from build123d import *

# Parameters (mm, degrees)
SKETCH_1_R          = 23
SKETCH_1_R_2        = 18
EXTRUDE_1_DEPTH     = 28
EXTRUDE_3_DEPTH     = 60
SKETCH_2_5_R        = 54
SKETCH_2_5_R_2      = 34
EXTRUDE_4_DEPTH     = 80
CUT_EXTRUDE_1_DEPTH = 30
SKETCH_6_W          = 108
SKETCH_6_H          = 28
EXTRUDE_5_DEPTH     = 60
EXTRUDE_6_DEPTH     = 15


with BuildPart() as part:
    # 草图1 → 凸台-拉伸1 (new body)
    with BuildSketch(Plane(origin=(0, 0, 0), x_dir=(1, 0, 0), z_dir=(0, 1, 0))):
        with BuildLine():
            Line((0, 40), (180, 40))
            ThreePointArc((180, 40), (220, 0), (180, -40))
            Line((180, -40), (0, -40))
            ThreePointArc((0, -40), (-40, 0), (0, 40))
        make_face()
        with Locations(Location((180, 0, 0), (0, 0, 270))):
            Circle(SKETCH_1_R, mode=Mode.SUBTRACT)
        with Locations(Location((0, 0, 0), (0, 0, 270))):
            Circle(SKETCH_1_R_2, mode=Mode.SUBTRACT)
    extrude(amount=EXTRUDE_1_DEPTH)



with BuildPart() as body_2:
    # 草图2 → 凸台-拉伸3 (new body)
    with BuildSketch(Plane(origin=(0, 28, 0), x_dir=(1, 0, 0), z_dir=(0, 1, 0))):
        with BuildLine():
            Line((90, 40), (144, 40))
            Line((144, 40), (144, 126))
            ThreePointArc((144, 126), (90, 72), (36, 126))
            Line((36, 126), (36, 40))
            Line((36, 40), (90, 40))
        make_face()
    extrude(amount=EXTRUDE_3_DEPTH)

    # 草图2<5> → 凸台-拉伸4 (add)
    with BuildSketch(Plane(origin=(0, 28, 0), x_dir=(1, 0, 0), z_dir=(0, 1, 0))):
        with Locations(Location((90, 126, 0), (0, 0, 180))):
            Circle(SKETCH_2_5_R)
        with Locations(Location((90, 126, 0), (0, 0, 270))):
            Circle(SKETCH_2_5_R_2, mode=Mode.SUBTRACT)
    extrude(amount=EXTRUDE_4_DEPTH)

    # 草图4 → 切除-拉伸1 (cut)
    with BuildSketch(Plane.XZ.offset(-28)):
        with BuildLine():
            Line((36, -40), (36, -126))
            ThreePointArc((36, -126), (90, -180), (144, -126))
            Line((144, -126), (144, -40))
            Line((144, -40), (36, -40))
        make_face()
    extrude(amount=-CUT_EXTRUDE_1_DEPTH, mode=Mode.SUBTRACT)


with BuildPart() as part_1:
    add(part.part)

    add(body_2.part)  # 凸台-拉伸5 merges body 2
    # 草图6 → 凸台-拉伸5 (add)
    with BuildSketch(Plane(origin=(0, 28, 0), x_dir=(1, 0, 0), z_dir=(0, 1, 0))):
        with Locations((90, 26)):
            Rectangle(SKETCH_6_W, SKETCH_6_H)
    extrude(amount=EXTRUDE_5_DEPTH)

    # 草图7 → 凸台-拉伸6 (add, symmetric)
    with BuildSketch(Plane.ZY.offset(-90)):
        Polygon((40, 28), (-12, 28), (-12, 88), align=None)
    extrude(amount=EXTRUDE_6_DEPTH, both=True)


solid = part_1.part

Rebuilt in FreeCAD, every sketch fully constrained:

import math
import FreeCAD as App
import Part
import Sketcher

V = App.Vector


def add_polygon(sketch, points):
    """Adds a closed chain of lines whose ends are joined by coincident constraints."""
    first, n = sketch.GeometryCount, len(points)
    for a, b in zip(points, points[1:] + points[:1]):
        sketch.addGeometry(Part.LineSegment(App.Vector(*a, 0), App.Vector(*b, 0)), False)
    for i in range(n):
        sketch.addConstraint(Sketcher.Constraint("Coincident", first + i, 2, first + (i + 1) % n, 1))

doc = App.newDocument("Part")
body = doc.addObject("PartDesign::Body", "Body")

# Sketch on XZ plane
sketch1 = body.newObject("Sketcher::SketchObject", "Sketch")
sketch1.AttachmentSupport = (doc.getObject("XZ_Plane"), [""])
sketch1.MapMode = "FlatFace"
sketch1.addGeometry([
    Part.LineSegment(V(180, -40, 0), V(0, -40, 0)),  # 0
    Part.ArcOfCircle(Part.Circle(V(0, 0, 0), V(0, 0, 1), 40), math.radians(90), math.radians(270)),  # 1
    Part.LineSegment(V(0, 40, 0), V(180, 40, 0)),  # 2
    Part.ArcOfCircle(Part.Circle(V(180, 0, 0), V(0, 0, 1), 40), math.radians(-90), math.radians(90)),  # 3
    Part.Circle(V(180, 0, 0), V(0, 0, 1), 23),  # 4
    Part.Circle(V(0, 0, 0), V(0, 0, 1), 18),  # 5
], False)
sketch1.addConstraint([
    Sketcher.Constraint("Tangent", 0, 2, 1, 2),
    Sketcher.Constraint("Tangent", 1, 1, 2, 1),
    Sketcher.Constraint("Tangent", 2, 2, 3, 2),
    Sketcher.Constraint("Tangent", 3, 1, 0, 1),
    Sketcher.Constraint("Horizontal", 0),
    Sketcher.Constraint("Horizontal", 2),
    Sketcher.Constraint("Coincident", 1, 3, -1, 1),
    Sketcher.Constraint("Coincident", 5, 3, -1, 1),
    Sketcher.Constraint("Coincident", 4, 3, 3, 3),
    Sketcher.Constraint("Diameter", 4, 46.0),
    Sketcher.Constraint("Diameter", 5, 36.0),
    Sketcher.Constraint("Radius", 1, 40.0),
    Sketcher.Constraint("DistanceX", 0, 2, 0, 1, 180.0),
])
pad1 = body.newObject("PartDesign::Pad", "Pad")
pad1.Profile = sketch1
pad1.Length = 28
pad1.Reversed = True
body2 = doc.addObject("PartDesign::Body", "Body001")

# Sketch on XZ plane
sketch2 = body2.newObject("Sketcher::SketchObject", "Sketch001")
sketch2.AttachmentSupport = (doc.getObject("XZ_Plane001"), [""])
sketch2.MapMode = "FlatFace"
sketch2.AttachmentOffset = App.Placement(V(0, 0, -28), App.Rotation())
sketch2.addGeometry([
    Part.LineSegment(V(144, -40, 0), V(144, -126, 0)),
    Part.ArcOfCircle(Part.Circle(V(90, -126, 0), V(0, 0, 1), 54), math.radians(0), math.radians(180)),
    Part.LineSegment(V(36, -126, 0), V(36, -40, 0)),
    Part.LineSegment(V(36, -40, 0), V(144, -40, 0)),
], False)
sketch2.addConstraint([
    Sketcher.Constraint("Tangent", 0, 2, 1, 1),
    Sketcher.Constraint("Tangent", 1, 2, 2, 1),
    Sketcher.Constraint("Coincident", 2, 2, 3, 1),
    Sketcher.Constraint("Coincident", 3, 2, 0, 1),
    Sketcher.Constraint("Vertical", 0),
    Sketcher.Constraint("Vertical", 2),
    Sketcher.Constraint("Horizontal", 3),
    Sketcher.Constraint("Radius", 1, 54.0),
    Sketcher.Constraint("DistanceY", 0, 2, 0, 1, 86.0),
    Sketcher.Constraint("DistanceX", -1, 1, 1, 3, 90.0),
    Sketcher.Constraint("DistanceY", 1, 3, -1, 1, 126.0),
])
pad2 = body2.newObject("PartDesign::Pad", "Pad001")
pad2.Profile = sketch2
pad2.Length = 60
pad2.Reversed = True

# Sketch on XZ plane
sketch3 = body2.newObject("Sketcher::SketchObject", "Sketch002")
sketch3.AttachmentSupport = (doc.getObject("XZ_Plane001"), [""])
sketch3.MapMode = "FlatFace"
sketch3.AttachmentOffset = App.Placement(V(0, 0, -28), App.Rotation())
sketch3.addGeometry([
    Part.Circle(V(90, -126, 0), V(0, 0, 1), 54),
    Part.Circle(V(90, -126, 0), V(0, 0, 1), 34),
], False)
sketch3.addConstraint([
    Sketcher.Constraint("Coincident", 1, 3, 0, 3),
    Sketcher.Constraint("Diameter", 0, 108.0),
    Sketcher.Constraint("Diameter", 1, 68.0),
    Sketcher.Constraint("DistanceX", -1, 1, 0, 3, 90.0),
    Sketcher.Constraint("DistanceY", 0, 3, -1, 1, 126.0),
])
pad3 = body2.newObject("PartDesign::Pad", "Pad002")
pad3.Profile = sketch3
pad3.Length = 80
pad3.Reversed = True

# Sketch on XZ plane
sketch4 = body2.newObject("Sketcher::SketchObject", "Sketch003")
sketch4.AttachmentSupport = (doc.getObject("XZ_Plane001"), [""])
sketch4.MapMode = "FlatFace"
sketch4.AttachmentOffset = App.Placement(V(0, 0, -28), App.Rotation())
sketch4.addGeometry([
    Part.LineSegment(V(36, -40, 0), V(36, -126, 0)),
    Part.ArcOfCircle(Part.Circle(V(90, -126, 0), V(0, 0, 1), 54), math.radians(180), math.radians(360)),
    Part.LineSegment(V(144, -126, 0), V(144, -40, 0)),
    Part.LineSegment(V(144, -40, 0), V(36, -40, 0)),
], False)
sketch4.addConstraint([
    Sketcher.Constraint("Tangent", 0, 2, 1, 1),
    Sketcher.Constraint("Tangent", 1, 2, 2, 1),
    Sketcher.Constraint("Coincident", 2, 2, 3, 1),
    Sketcher.Constraint("Coincident", 3, 2, 0, 1),
    Sketcher.Constraint("Vertical", 0),
    Sketcher.Constraint("Vertical", 2),
    Sketcher.Constraint("Horizontal", 3),
    Sketcher.Constraint("Radius", 1, 54.0),
    Sketcher.Constraint("DistanceY", 0, 2, 0, 1, 86.0),
    Sketcher.Constraint("DistanceX", -1, 1, 1, 3, 90.0),
    Sketcher.Constraint("DistanceY", 1, 3, -1, 1, 126.0),
])
pocket1 = body2.newObject("PartDesign::Pocket", "Pocket")
pocket1.Profile = sketch4
pocket1.Length = 30
body.AllowCompound = True
doc.recompute()

boolean = body.newObject("PartDesign::Boolean", "Boolean")
boolean.Type = "Fuse"
boolean.addObjects([body2])

# Sketch on XZ plane
sketch5 = body.newObject("Sketcher::SketchObject", "Sketch004")
sketch5.AttachmentSupport = (doc.getObject("XZ_Plane"), [""])
sketch5.MapMode = "FlatFace"
sketch5.AttachmentOffset = App.Placement(V(0, 0, -28), App.Rotation())
add_polygon(sketch5, [(36, -40), (36, -12), (144, -12), (144, -40)])  # lines 0-3
sketch5.addConstraint([
    Sketcher.Constraint("Vertical", 0),
    Sketcher.Constraint("Horizontal", 1),
    Sketcher.Constraint("Vertical", 2),
    Sketcher.Constraint("Horizontal", 3),
    Sketcher.Constraint("DistanceX", 1, 1, 1, 2, 108.0),
    Sketcher.Constraint("DistanceY", 0, 1, 0, 2, 28.0),
    Sketcher.Constraint("DistanceX", -1, 1, 0, 2, 36.0),
    Sketcher.Constraint("DistanceY", 0, 2, -1, 1, 12.0),
])
pad4 = body.newObject("PartDesign::Pad", "Pad003")
pad4.Profile = sketch5
pad4.Length = 60
pad4.Reversed = True

# Sketch on YZ plane
sketch6 = body.newObject("Sketcher::SketchObject", "Sketch005")
sketch6.AttachmentSupport = (doc.getObject("YZ_Plane"), [""])
sketch6.MapMode = "FlatFace"
sketch6.AttachmentOffset = App.Placement(V(0, 0, 90), App.Rotation())
add_polygon(sketch6, [(28, -12), (28, 40), (88, -12)])  # lines 0-2
sketch6.addConstraint([
    Sketcher.Constraint("Vertical", 0),
    Sketcher.Constraint("Horizontal", 2),
    Sketcher.Constraint("DistanceX", 2, 2, 2, 1, 60.0),
    Sketcher.Constraint("DistanceY", 0, 1, 0, 2, 52.0),
    Sketcher.Constraint("DistanceX", -1, 1, 0, 2, 28.0),
    Sketcher.Constraint("DistanceY", -1, 1, 0, 2, 40.0),
])
pad5 = body.newObject("PartDesign::Pad", "Pad004")
pad5.Profile = sketch6
pad5.Length = 30
pad5.Midplane = True

doc.recompute()
